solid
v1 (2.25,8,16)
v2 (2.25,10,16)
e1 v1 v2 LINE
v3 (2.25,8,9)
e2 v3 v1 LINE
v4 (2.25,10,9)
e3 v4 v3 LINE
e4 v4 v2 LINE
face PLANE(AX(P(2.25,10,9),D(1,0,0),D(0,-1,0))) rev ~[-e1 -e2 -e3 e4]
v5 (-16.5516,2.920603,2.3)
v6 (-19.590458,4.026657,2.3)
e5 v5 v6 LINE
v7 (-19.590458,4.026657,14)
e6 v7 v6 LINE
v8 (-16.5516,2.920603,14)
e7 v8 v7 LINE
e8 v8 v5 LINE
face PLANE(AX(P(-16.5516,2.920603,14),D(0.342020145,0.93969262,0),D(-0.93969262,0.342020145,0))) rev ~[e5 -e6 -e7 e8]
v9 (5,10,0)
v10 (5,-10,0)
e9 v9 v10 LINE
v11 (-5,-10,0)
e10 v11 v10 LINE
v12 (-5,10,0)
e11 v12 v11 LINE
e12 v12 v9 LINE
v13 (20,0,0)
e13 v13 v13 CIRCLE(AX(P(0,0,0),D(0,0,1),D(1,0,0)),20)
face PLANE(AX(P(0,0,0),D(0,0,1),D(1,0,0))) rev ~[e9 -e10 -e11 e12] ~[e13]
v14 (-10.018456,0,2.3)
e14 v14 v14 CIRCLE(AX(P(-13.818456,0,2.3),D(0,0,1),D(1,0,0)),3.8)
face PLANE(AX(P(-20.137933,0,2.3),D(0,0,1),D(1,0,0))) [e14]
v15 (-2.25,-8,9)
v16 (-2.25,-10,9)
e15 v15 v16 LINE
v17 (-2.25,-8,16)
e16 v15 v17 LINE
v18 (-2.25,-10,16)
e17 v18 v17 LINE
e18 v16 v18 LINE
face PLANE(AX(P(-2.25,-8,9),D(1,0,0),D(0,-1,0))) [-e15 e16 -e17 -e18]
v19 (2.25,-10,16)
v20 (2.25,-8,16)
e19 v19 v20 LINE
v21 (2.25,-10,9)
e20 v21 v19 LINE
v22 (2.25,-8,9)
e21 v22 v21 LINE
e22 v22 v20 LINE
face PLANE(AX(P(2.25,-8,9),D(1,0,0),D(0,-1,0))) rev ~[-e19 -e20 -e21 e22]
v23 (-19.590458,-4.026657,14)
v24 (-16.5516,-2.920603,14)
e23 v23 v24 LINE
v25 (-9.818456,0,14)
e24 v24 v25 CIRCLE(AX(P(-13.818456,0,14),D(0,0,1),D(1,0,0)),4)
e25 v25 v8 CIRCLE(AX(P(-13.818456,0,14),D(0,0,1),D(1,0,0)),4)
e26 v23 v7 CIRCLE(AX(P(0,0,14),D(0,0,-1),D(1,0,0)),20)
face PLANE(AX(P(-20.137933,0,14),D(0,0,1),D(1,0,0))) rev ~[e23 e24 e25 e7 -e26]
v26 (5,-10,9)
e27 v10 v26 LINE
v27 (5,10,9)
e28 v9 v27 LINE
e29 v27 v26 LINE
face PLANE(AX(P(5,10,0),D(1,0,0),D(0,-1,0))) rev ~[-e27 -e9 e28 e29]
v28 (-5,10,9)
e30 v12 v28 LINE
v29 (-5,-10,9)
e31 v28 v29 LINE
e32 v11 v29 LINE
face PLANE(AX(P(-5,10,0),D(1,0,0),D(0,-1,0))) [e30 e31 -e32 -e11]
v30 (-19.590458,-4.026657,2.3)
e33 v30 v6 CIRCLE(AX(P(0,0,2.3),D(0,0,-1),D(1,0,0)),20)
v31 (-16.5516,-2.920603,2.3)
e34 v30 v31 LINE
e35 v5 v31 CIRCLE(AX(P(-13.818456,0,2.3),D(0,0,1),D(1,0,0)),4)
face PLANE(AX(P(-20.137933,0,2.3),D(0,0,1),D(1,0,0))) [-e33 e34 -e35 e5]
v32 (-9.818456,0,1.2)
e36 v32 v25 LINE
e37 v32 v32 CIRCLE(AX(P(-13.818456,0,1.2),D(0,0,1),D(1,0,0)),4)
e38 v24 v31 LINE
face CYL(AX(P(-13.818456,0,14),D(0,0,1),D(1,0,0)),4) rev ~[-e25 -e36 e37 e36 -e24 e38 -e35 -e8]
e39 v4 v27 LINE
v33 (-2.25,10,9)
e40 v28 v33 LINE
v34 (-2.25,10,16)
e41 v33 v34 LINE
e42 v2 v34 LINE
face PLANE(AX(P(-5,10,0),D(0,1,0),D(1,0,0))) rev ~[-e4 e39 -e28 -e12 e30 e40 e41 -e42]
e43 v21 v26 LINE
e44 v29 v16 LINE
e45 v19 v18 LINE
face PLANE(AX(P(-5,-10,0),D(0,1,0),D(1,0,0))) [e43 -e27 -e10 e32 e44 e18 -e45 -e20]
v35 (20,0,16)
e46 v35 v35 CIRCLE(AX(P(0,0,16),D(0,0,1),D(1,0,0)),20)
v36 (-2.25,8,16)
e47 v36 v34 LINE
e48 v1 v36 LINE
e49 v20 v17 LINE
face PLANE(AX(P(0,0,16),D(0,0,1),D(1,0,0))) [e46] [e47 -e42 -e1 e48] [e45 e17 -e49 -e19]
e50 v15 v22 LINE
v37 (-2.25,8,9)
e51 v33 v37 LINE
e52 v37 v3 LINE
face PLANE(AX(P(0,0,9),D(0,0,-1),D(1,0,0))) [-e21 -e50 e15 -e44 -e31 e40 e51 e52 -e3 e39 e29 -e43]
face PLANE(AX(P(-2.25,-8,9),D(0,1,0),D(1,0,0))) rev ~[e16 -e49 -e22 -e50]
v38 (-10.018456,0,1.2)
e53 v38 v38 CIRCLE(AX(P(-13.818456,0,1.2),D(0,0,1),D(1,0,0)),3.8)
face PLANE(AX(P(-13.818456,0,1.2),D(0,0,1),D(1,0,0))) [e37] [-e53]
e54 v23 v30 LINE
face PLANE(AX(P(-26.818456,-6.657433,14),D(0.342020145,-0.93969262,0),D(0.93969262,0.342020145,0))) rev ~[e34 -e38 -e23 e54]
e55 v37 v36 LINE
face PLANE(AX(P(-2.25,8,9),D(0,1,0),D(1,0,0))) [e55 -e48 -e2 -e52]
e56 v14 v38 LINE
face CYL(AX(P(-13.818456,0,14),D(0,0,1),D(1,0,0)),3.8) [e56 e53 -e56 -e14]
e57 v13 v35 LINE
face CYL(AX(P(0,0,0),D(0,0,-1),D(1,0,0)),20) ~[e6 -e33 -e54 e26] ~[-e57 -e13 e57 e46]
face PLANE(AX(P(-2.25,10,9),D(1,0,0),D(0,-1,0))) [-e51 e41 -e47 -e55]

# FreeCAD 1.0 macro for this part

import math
import FreeCAD as App
import Part
import Sketcher
Q = App.Units.Quantity

doc = App.newDocument("Part")
body = doc.addObject("PartDesign::Body", "Body")

# Sketch on XY plane
sketch1 = body.newObject("Sketcher::SketchObject", "Sketch")
sketch1.AttachmentSupport = (doc.getObject("XY_Plane"), [""])
sketch1.MapMode = "FlatFace"
sketch1.addGeometry(Part.Circle(App.Vector(0, 0, 0), App.Vector(0, 0, 1), 20), False)
sketch1.addConstraint([
    Sketcher.Constraint("Coincident", 0, 3, -1, 1),
    Sketcher.Constraint("Diameter", 0, Q("40 mm")),
])
pad1 = body.newObject("PartDesign::Pad", "Pad")
pad1.Profile = sketch1
pad1.Length = 16

# Sketch on XY plane
sketch2 = body.newObject("Sketcher::SketchObject", "Sketch001")
sketch2.AttachmentSupport = (doc.getObject("XY_Plane"), [""])
sketch2.MapMode = "FlatFace"
sketch2.addGeometry([
    Part.LineSegment(App.Vector(-5, -10, 0), App.Vector(-5, 10, 0)),
    Part.LineSegment(App.Vector(-5, 10, 0), App.Vector(5, 10, 0)),
    Part.LineSegment(App.Vector(5, 10, 0), App.Vector(5, -10, 0)),
    Part.LineSegment(App.Vector(5, -10, 0), App.Vector(-5, -10, 0)),
], False)
sketch2.addConstraint([
    Sketcher.Constraint("Coincident", 0, 2, 1, 1),
    Sketcher.Constraint("Coincident", 1, 2, 2, 1),
    Sketcher.Constraint("Coincident", 2, 2, 3, 1),
    Sketcher.Constraint("Coincident", 3, 2, 0, 1),
    Sketcher.Constraint("Vertical", 0),
    Sketcher.Constraint("Horizontal", 1),
    Sketcher.Constraint("Vertical", 2),
    Sketcher.Constraint("Horizontal", 3),
    Sketcher.Constraint("Symmetric", 0, 2, 2, 2, -1, 1),
    Sketcher.Constraint("DistanceX", 1, 1, 1, 2, Q("10 mm")),
    Sketcher.Constraint("DistanceY", 0, 1, 0, 2, Q("20 mm")),
])
pocket1 = body.newObject("PartDesign::Pocket", "Pocket")
pocket1.Profile = sketch2
pocket1.Length = 9
pocket1.Reversed = True

# Sketch on XY plane
sketch3 = body.newObject("Sketcher::SketchObject", "Sketch002")
sketch3.AttachmentSupport = (doc.getObject("XY_Plane"), [""])
sketch3.MapMode = "FlatFace"
sketch3.AttachmentOffset = App.Placement(App.Vector(0, 0, 9), App.Rotation())
sketch3.addGeometry([
    Part.LineSegment(App.Vector(-2.25, -10, 0), App.Vector(-2.25, -8, 0)),  # 0
    Part.LineSegment(App.Vector(-2.25, -8, 0), App.Vector(2.25, -8, 0)),  # 1
    Part.LineSegment(App.Vector(2.25, -8, 0), App.Vector(2.25, -10, 0)),  # 2
    Part.LineSegment(App.Vector(2.25, -10, 0), App.Vector(-2.25, -10, 0)),  # 3
    Part.LineSegment(App.Vector(-2.25, 8, 0), App.Vector(-2.25, 10, 0)),  # 4
    Part.LineSegment(App.Vector(-2.25, 10, 0), App.Vector(2.25, 10, 0)),  # 5
    Part.LineSegment(App.Vector(2.25, 10, 0), App.Vector(2.25, 8, 0)),  # 6
    Part.LineSegment(App.Vector(2.25, 8, 0), App.Vector(-2.25, 8, 0)),  # 7
], False)
sketch3.addConstraint([
    Sketcher.Constraint("Coincident", 0, 2, 1, 1),
    Sketcher.Constraint("Coincident", 1, 2, 2, 1),
    Sketcher.Constraint("Coincident", 2, 2, 3, 1),
    Sketcher.Constraint("Coincident", 3, 2, 0, 1),
    Sketcher.Constraint("Coincident", 4, 2, 5, 1),
    Sketcher.Constraint("Coincident", 5, 2, 6, 1),
    Sketcher.Constraint("Coincident", 6, 2, 7, 1),
    Sketcher.Constraint("Coincident", 7, 2, 4, 1),
    Sketcher.Constraint("Vertical", 0),
    Sketcher.Constraint("Horizontal", 1),
    Sketcher.Constraint("Vertical", 2),
    Sketcher.Constraint("Horizontal", 3),
    Sketcher.Constraint("Vertical", 4),
    Sketcher.Constraint("Horizontal", 5),
    Sketcher.Constraint("Vertical", 6),
    Sketcher.Constraint("Horizontal", 7),
    Sketcher.Constraint("Symmetric", 2, 2, 4, 2, -1, 1),
    Sketcher.Constraint("Symmetric", 0, 2, 6, 2, -1, 1),
    Sketcher.Constraint("Vertical", 3, 2, 4, 2),
    Sketcher.Constraint("DistanceY", 0, 1, 0, 2, Q("2 mm")),
    Sketcher.Constraint("DistanceX", 1, 1, 1, 2, Q("4.5 mm")),
    Sketcher.Constraint("DistanceY", 0, 2, -1, 1, Q("8 mm")),
])
pocket2 = body.newObject("PartDesign::Pocket", "Pocket001")
pocket2.Profile = sketch3
pocket2.Type = "ThroughAll"
pocket2.Reversed = True

# Sketch on XY plane
sketch4 = body.newObject("Sketcher::SketchObject", "Sketch003")
sketch4.AttachmentSupport = (doc.getObject("XY_Plane"), [""])
sketch4.MapMode = "FlatFace"
sketch4.AttachmentOffset = App.Placement(App.Vector(0, 0, 14), App.Rotation())
sketch4.addGeometry([
    Part.Circle(App.Vector(-13.818456, 0, 0), App.Vector(0, 0, 1), 4),
    Part.Circle(App.Vector(-13.818456, 0, 0), App.Vector(0, 0, 1), 3.8),
], False)
sketch4.addConstraint([
    Sketcher.Constraint("Coincident", 1, 3, 0, 3),
    Sketcher.Constraint("PointOnObject", 0, 3, -1),
    Sketcher.Constraint("Diameter", 0, Q("8 mm")),
    Sketcher.Constraint("Diameter", 1, Q("7.6 mm")),
    Sketcher.Constraint("DistanceX", 0, 3, -1, 1, Q("13.818456 mm")),
])
pocket3 = body.newObject("PartDesign::Pocket", "Pocket002")
pocket3.Profile = sketch4
pocket3.Length = 12.8

# Sketch on XY plane
sketch5 = body.newObject("Sketcher::SketchObject", "Sketch004")
sketch5.AttachmentSupport = (doc.getObject("XY_Plane"), [""])
sketch5.MapMode = "FlatFace"
sketch5.AttachmentOffset = App.Placement(App.Vector(0, 0, 14), App.Rotation())
sketch5.addGeometry([
    Part.LineSegment(App.Vector(-26.818456, -6.657433, 0), App.Vector(-16.5516, -2.920603, 0)),
    Part.ArcOfCircle(Part.Circle(App.Vector(-13.818456, 0, 0), App.Vector(0, 0, 1), 4), math.radians(-133.100964), math.radians(133.100964)),
    Part.LineSegment(App.Vector(-16.5516, 2.920603, 0), App.Vector(-26.818456, 6.657433, 0)),
    Part.LineSegment(App.Vector(-26.818456, 6.657433, 0), App.Vector(-26.818456, -6.657433, 0)),
], False)
sketch5.addConstraint([
    Sketcher.Constraint("Coincident", 0, 2, 1, 1),
    Sketcher.Constraint("Coincident", 1, 2, 2, 1),
    Sketcher.Constraint("Coincident", 2, 2, 3, 1),
    Sketcher.Constraint("Coincident", 3, 2, 0, 1),
    Sketcher.Constraint("Vertical", 3),
    Sketcher.Constraint("Symmetric", 0, 2, 1, 2, -1),
    Sketcher.Constraint("Equal", 0, 2),
    Sketcher.Constraint("Radius", 1, Q("4 mm")),
    Sketcher.Constraint("Angle", 0, Q("20 deg")),
    Sketcher.Constraint("DistanceX", 2, 2, 1, 3, Q("13 mm")),
    Sketcher.Constraint("DistanceX", 0, 2, -1, 1, Q("16.5516 mm")),
    Sketcher.Constraint("Distance", 0, Q("10.92576 mm")),
])
pocket4 = body.newObject("PartDesign::Pocket", "Pocket003")
pocket4.Profile = sketch5
pocket4.Length = 11.7

doc.recompute()
